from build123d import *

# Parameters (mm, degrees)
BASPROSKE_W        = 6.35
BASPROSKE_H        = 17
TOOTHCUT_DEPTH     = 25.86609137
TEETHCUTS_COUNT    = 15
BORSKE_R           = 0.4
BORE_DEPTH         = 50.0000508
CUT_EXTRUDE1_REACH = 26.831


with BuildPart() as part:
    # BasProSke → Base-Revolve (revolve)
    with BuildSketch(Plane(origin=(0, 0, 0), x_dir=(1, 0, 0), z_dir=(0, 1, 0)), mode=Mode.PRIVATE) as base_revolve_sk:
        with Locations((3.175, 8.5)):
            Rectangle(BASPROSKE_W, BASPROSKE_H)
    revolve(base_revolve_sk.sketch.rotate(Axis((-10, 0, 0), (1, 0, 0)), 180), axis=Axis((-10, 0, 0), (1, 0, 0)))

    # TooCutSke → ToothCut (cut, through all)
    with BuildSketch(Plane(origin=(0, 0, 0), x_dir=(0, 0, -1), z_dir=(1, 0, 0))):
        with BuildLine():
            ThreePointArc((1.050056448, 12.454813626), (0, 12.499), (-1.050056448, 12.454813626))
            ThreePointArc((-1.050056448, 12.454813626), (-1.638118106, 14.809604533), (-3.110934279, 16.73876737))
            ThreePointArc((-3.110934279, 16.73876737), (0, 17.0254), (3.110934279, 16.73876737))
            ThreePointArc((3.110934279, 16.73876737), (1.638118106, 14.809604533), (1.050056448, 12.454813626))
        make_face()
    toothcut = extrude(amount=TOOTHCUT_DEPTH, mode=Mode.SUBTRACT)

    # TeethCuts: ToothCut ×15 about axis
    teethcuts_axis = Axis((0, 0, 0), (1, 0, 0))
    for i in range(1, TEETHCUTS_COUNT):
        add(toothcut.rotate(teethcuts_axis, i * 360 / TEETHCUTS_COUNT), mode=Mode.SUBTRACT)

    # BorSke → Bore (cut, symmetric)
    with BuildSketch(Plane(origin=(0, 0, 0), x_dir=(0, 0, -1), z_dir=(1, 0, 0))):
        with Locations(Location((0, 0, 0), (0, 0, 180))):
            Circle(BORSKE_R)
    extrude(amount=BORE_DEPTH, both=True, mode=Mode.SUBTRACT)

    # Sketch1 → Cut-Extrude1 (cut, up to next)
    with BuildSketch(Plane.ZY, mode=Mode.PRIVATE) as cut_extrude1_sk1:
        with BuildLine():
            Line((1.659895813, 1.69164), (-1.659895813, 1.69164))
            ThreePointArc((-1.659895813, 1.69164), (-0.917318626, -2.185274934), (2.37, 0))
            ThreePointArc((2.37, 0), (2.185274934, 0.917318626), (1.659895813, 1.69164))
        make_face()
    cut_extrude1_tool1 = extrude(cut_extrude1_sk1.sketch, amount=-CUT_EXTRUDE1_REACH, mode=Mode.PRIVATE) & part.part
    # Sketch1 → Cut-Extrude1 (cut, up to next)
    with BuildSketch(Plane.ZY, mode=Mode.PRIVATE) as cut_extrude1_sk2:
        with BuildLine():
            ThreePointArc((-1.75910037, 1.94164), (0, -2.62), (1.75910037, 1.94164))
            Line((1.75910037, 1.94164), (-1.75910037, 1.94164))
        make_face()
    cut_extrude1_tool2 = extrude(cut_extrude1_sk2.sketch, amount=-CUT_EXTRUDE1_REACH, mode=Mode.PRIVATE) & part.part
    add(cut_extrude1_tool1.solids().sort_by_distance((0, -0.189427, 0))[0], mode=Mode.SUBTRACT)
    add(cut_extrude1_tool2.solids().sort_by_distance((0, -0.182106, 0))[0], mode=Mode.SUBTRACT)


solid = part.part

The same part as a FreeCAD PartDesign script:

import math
import FreeCAD as App
import Part
import Sketcher

doc = App.newDocument("Part")
params = doc.addObject("Spreadsheet::Sheet", "Params")
for row, (alias, value) in enumerate([
    ("sketch1_height", "17 mm"),
    ("sketch1_width", "6.35 mm"),
    ("revolution_angle", "360 deg"),
    ("sketch2_radius", "6 mm"),
    ("sketch3_diameter", "0.8 mm"),
    ("pocket2_length", "100.000102 mm"),
    ("sketch4_radius", "2.37 mm"),
    ("pocket3_length", "6.35 mm"),
    ("sketch5_radius", "2.62 mm"),
    ("pocket4_length", "6.35 mm"),
], start=1):
    params.set(f"A{row}", alias)
    params.set(f"B{row}", "=" + value)
    params.setAlias(f"B{row}", alias)

body = doc.addObject("PartDesign::Body", "Body")

# Sketch on XZ plane
sketch1 = body.newObject("Sketcher::SketchObject", "Sketch")
sketch1.AttachmentSupport = (doc.getObject("XZ_Plane"), [""])
sketch1.MapMode = "FlatFace"
sketch1.addGeometry([
    Part.LineSegment(App.Vector(0, -17, 0), App.Vector(0, 0, 0)),
    Part.LineSegment(App.Vector(0, 0, 0), App.Vector(6, 0, 0)),
    Part.LineSegment(App.Vector(6, 0, 0), App.Vector(6, -17, 0)),
    Part.LineSegment(App.Vector(6, -17, 0), App.Vector(0, -17, 0)),
], False)
sketch1.addConstraint([
    Sketcher.Constraint("Coincident", 0, 2, 1, 1),
    Sketcher.Constraint("Coincident", 1, 2, 2, 1),
    Sketcher.Constraint("Coincident", 2, 2, 3, 1),
    Sketcher.Constraint("Coincident", 3, 2, 0, 1),
    Sketcher.Constraint("Vertical", 0),
    Sketcher.Constraint("Horizontal", 1),
    Sketcher.Constraint("Vertical", 2),
    Sketcher.Constraint("Horizontal", 3),
    Sketcher.Constraint("Coincident", 0, 2, -1, 1),
    Sketcher.Constraint("DistanceY", 0, 1, 0, 2, 17.0),
    Sketcher.Constraint("DistanceX", 1, 1, 1, 2, 6.35),
])
sketch1.setExpression("Constraints[9]", "Params.sketch1_height")
sketch1.setExpression("Constraints[10]", "Params.sketch1_width")
revolution = body.newObject("PartDesign::Revolution", "Revolution")
revolution.Profile = sketch1
revolution.ReferenceAxis = (sketch1, ["H_Axis"])
revolution.setExpression("Angle", "Params.revolution_angle")

# Sketch on YZ plane
sketch2 = body.newObject("Sketcher::SketchObject", "Sketch001")
sketch2.AttachmentSupport = (doc.getObject("YZ_Plane"), [""])
sketch2.MapMode = "FlatFace"
sketch2.addGeometry([
    Part.ArcOfCircle(Part.Circle(App.Vector(0, 0, 0), App.Vector(0, 0, 1), 12.5), math.radians(-4.82), math.radians(4.82)),
    Part.ArcOfCircle(Part.Circle(App.Vector(12.2, -7, 0), App.Vector(0, 0, 1), 6), math.radians(41), math.radians(88)),
    Part.ArcOfCircle(Part.Circle(App.Vector(0, 0, 0), App.Vector(0, 0, 1), 17), math.radians(-11), math.radians(11)),
    Part.ArcOfCircle(Part.Circle(App.Vector(12.2, 7, 0), App.Vector(0, 0, 1), 6), math.radians(-88), math.radians(-41)),
], False)
sketch2.addConstraint([
    Sketcher.Constraint("Coincident", 0, 1, 1, 2),
    Sketcher.Constraint("Coincident", 1, 1, 2, 1),
    Sketcher.Constraint("Coincident", 2, 2, 3, 2),
    Sketcher.Constraint("Coincident", 3, 1, 0, 2),
    Sketcher.Constraint("Coincident", 0, 3, -1, 1),
    Sketcher.Constraint("Coincident", 2, 3, -1, 1),
    Sketcher.Constraint("Equal", 1, 3),
    Sketcher.Constraint("Symmetric", 1, 3, 3, 3, -1),
    Sketcher.Constraint("Radius", 1, 6.0),
    Sketcher.Constraint("Radius", 0, 12.499),
    Sketcher.Constraint("Radius", 2, 17.0254),
    Sketcher.Constraint("DistanceY", 1, 3, 3, 3, 14.089999),
    Sketcher.Constraint("DistanceX", -1, 1, 1, 3, 12.208521),
])
sketch2.setExpression("Constraints[8]", "Params.sketch2_radius")
pocket1 = body.newObject("PartDesign::Pocket", "Pocket")
pocket1.Profile = sketch2
pocket1.Type = "ThroughAll"
pocket1.Reversed = True
doc.recompute()

polarpattern = body.newObject("PartDesign::PolarPattern", "PolarPattern")
polarpattern.Originals = [pocket1]
polarpattern.Axis = (doc.getObject("X_Axis"), [""])
polarpattern.Angle = 360
polarpattern.Occurrences = 15
body.Tip = polarpattern

# Sketch on YZ plane
sketch3 = body.newObject("Sketcher::SketchObject", "Sketch002")
sketch3.AttachmentSupport = (doc.getObject("YZ_Plane"), [""])
sketch3.MapMode = "FlatFace"
sketch3.addGeometry(Part.Circle(App.Vector(0, 0, 0), App.Vector(0, 0, 1), 0.4), False)
sketch3.addConstraint([
    Sketcher.Constraint("Coincident", 0, 3, -1, 1),
    Sketcher.Constraint("Diameter", 0, 0.8),
])
sketch3.setExpression("Constraints[1]", "Params.sketch3_diameter")
pocket2 = body.newObject("PartDesign::Pocket", "Pocket001")
pocket2.Profile = sketch3
pocket2.setExpression("Length", "Params.pocket2_length")
pocket2.Midplane = True

# Sketch on YZ plane
sketch4 = body.newObject("Sketcher::SketchObject", "Sketch003")
sketch4.AttachmentSupport = (doc.getObject("YZ_Plane"), [""])
sketch4.MapMode = "FlatFace"
sketch4.addGeometry([
    Part.LineSegment(App.Vector(1.7, 1.7, 0), App.Vector(1.7, -1.7, 0)),
    Part.ArcOfCircle(Part.Circle(App.Vector(0, 0, 0), App.Vector(0, 0, 1), 2.4), math.radians(90), math.radians(316)),
    Part.ArcOfCircle(Part.Circle(App.Vector(0, 0, 0), App.Vector(0, 0, 1), 2.4), math.radians(44), math.radians(90)),
], False)
sketch4.addConstraint([
    Sketcher.Constraint("Coincident", 0, 2, 1, 2),
    Sketcher.Constraint("Tangent", 1, 1, 2, 2),
    Sketcher.Constraint("Coincident", 2, 1, 0, 1),
    Sketcher.Constraint("Vertical", 0),
    Sketcher.Constraint("Coincident", 1, 3, -1, 1),
    Sketcher.Constraint("Equal", 1, 2),
    Sketcher.Constraint("PointOnObject", 1, 1, -2),
    Sketcher.Constraint("Radius", 1, 2.37),
    Sketcher.Constraint("DistanceY", 0, 2, 0, 1, 3.319792),
])
sketch4.setExpression("Constraints[7]", "Params.sketch4_radius")
pocket3 = body.newObject("PartDesign::Pocket", "Pocket002")
pocket3.Profile = sketch4
pocket3.setExpression("Length", "Params.pocket3_length")
pocket3.Reversed = True

# Sketch on YZ plane
sketch5 = body.newObject("Sketcher::SketchObject", "Sketch004")
sketch5.AttachmentSupport = (doc.getObject("YZ_Plane"), [""])
sketch5.MapMode = "FlatFace"
sketch5.addGeometry([
    Part.ArcOfCircle(Part.Circle(App.Vector(0, 0, 0), App.Vector(0, 0, 1), 2.6), math.radians(42), math.radians(318)),
    Part.LineSegment(App.Vector(1.9, 1.8, 0), App.Vector(1.9, -1.8, 0)),
], False)
sketch5.addConstraint([
    Sketcher.Constraint("Coincident", 0, 1, 1, 1),
    Sketcher.Constraint("Coincident", 1, 2, 0, 2),
    Sketcher.Constraint("Vertical", 1),
    Sketcher.Constraint("Coincident", 0, 3, -1, 1),
    Sketcher.Constraint("Radius", 0, 2.62),
    Sketcher.Constraint("DistanceY", 1, 2, 1, 1, 3.518201),
])
sketch5.setExpression("Constraints[4]", "Params.sketch5_radius")
pocket4 = body.newObject("PartDesign::Pocket", "Pocket003")
pocket4.Profile = sketch5
pocket4.setExpression("Length", "Params.pocket4_length")
pocket4.Reversed = True

doc.recompute()
